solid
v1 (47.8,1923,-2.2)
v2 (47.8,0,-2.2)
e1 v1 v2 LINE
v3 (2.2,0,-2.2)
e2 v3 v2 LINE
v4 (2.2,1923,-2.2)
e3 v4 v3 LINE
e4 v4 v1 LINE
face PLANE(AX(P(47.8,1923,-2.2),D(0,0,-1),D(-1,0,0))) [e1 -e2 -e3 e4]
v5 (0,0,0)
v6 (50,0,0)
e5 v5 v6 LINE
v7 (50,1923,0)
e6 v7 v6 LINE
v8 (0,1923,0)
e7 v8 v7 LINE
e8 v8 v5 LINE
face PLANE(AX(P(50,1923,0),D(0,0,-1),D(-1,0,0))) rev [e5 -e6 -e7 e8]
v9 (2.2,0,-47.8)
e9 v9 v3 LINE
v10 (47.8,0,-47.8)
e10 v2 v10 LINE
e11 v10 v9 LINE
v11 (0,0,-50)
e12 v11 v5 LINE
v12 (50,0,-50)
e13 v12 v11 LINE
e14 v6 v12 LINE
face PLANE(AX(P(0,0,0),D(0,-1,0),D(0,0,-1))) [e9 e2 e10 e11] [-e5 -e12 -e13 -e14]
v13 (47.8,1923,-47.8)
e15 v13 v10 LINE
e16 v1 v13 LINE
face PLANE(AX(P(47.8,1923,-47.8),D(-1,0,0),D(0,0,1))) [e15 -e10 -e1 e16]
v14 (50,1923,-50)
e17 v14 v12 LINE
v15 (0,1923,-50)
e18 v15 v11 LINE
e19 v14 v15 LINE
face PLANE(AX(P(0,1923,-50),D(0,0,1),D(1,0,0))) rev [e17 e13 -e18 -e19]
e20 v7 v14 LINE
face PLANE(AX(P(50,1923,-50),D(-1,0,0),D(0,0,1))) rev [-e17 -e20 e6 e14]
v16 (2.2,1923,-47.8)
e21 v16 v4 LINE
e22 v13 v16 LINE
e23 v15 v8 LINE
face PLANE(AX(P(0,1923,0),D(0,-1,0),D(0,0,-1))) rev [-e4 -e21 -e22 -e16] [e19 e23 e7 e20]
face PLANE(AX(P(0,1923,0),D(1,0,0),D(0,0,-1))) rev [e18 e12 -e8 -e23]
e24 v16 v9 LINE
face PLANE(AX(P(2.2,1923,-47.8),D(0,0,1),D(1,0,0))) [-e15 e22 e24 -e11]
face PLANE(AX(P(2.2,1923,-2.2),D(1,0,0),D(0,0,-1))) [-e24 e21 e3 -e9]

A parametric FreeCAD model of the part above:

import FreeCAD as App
import Part
import Sketcher

doc = App.newDocument("Part")
params = doc.addObject("Spreadsheet::Sheet", "Params")
for row, (alias, value) in enumerate([
    ("sketch1_width", "50 mm"),
    ("sketch1_width2", "45.6 mm"),
    ("pad1_length", "1923 mm"),
], start=1):
    params.set(f"A{row}", alias)
    params.set(f"B{row}", "=" + value)
    params.setAlias(f"B{row}", alias)

body = doc.addObject("PartDesign::Body", "Body")

# Sketch on XZ plane
sketch1 = body.newObject("Sketcher::SketchObject", "Sketch")
sketch1.AttachmentSupport = (doc.getObject("XZ_Plane"), [""])
sketch1.MapMode = "FlatFace"
sketch1.addGeometry(Part.LineSegment(App.Vector(0, -50, 0), App.Vector(0, 0, 0)), False)
sketch1.addGeometry(Part.LineSegment(App.Vector(0, 0, 0), App.Vector(50, 0, 0)), False)
sketch1.addGeometry(Part.LineSegment(App.Vector(50, 0, 0), App.Vector(50, -50, 0)), False)
sketch1.addGeometry(Part.LineSegment(App.Vector(50, -50, 0), App.Vector(0, -50, 0)), False)
sketch1.addGeometry(Part.LineSegment(App.Vector(48, -2, 0), App.Vector(2, -2, 0)), False)
sketch1.addGeometry(Part.LineSegment(App.Vector(2, -2, 0), App.Vector(2, -48, 0)), False)
sketch1.addGeometry(Part.LineSegment(App.Vector(2, -48, 0), App.Vector(48, -48, 0)), False)
sketch1.addGeometry(Part.LineSegment(App.Vector(48, -48, 0), App.Vector(48, -2, 0)), False)
sketch1.addConstraint(Sketcher.Constraint("Coincident", 0, 2, 1, 1))
sketch1.addConstraint(Sketcher.Constraint("Coincident", 1, 2, 2, 1))
sketch1.addConstraint(Sketcher.Constraint("Coincident", 2, 2, 3, 1))
sketch1.addConstraint(Sketcher.Constraint("Coincident", 3, 2, 0, 1))
sketch1.addConstraint(Sketcher.Constraint("Coincident", 4, 2, 5, 1))
sketch1.addConstraint(Sketcher.Constraint("Coincident", 5, 2, 6, 1))
sketch1.addConstraint(Sketcher.Constraint("Coincident", 6, 2, 7, 1))
sketch1.addConstraint(Sketcher.Constraint("Coincident", 7, 2, 4, 1))
sketch1.addConstraint(Sketcher.Constraint("Vertical", 0))
sketch1.addConstraint(Sketcher.Constraint("Horizontal", 1))
sketch1.addConstraint(Sketcher.Constraint("Vertical", 2))
sketch1.addConstraint(Sketcher.Constraint("Horizontal", 3))
sketch1.addConstraint(Sketcher.Constraint("Horizontal", 4))
sketch1.addConstraint(Sketcher.Constraint("Vertical", 5))
sketch1.addConstraint(Sketcher.Constraint("Horizontal", 6))
sketch1.addConstraint(Sketcher.Constraint("Vertical", 7))
sketch1.addConstraint(Sketcher.Constraint("Coincident", 0, 2, -1, 1))
sketch1.addConstraint(Sketcher.Constraint("Equal", 3, 0))
sketch1.addConstraint(Sketcher.Constraint("Equal", 6, 5))
sketch1.addConstraint(Sketcher.Constraint("DistanceX", 1, 1, 1, 2, 50.0))
sketch1.addConstraint(Sketcher.Constraint("DistanceX", 4, 2, 4, 1, 45.6))
sketch1.addConstraint(Sketcher.Constraint("DistanceX", -1, 1, 4, 2, 2.2))
sketch1.addConstraint(Sketcher.Constraint("DistanceY", 4, 2, -1, 1, 2.2))
sketch1.setExpression("Constraints[19]", "Params.sketch1_width")
sketch1.setExpression("Constraints[20]", "Params.sketch1_width2")
pad1 = body.newObject("PartDesign::Pad", "Pad")
pad1.Profile = sketch1
pad1.setExpression("Length", "Params.pad1_length")
pad1.Reversed = True

doc.recompute()
